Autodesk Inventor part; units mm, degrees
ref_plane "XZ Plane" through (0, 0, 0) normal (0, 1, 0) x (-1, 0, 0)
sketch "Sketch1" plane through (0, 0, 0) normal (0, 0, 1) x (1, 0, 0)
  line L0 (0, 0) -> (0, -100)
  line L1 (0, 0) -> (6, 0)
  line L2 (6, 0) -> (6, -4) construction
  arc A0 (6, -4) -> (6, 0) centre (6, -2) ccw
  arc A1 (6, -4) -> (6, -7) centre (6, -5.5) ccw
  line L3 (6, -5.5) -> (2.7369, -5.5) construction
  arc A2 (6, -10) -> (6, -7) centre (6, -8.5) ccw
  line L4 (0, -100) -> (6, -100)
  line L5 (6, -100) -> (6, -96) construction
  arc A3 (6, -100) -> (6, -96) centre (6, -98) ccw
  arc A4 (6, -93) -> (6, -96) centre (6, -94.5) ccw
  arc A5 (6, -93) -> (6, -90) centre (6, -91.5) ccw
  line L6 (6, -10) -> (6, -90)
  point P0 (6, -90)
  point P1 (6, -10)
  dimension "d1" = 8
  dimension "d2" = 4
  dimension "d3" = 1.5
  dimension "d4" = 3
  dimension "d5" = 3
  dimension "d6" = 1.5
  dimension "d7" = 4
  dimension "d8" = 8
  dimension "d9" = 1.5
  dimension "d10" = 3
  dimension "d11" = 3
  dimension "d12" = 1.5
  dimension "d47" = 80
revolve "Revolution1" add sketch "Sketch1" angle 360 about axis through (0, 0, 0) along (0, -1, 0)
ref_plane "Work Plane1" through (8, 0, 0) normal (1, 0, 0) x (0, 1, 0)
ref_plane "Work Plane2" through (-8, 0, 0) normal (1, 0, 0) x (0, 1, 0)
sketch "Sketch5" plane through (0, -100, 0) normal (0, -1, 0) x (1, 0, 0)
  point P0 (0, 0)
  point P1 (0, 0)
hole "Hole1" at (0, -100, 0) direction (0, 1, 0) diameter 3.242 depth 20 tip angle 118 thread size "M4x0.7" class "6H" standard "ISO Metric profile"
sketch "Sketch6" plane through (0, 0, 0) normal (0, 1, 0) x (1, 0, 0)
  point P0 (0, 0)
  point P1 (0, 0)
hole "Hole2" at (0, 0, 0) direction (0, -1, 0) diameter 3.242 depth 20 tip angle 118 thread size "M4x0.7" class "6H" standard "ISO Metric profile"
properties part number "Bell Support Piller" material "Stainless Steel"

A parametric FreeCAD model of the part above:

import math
import FreeCAD as App
import Part
import Sketcher
Q = App.Units.Quantity

doc = App.newDocument("Part")
body = doc.addObject("PartDesign::Body", "Body")

sketch1 = body.newObject("Sketcher::SketchObject", "Sketch")
sketch1.AttachmentSupport = (doc.getObject("XY_Plane"), [""])
sketch1.MapMode = "FlatFace"
sketch1.addGeometry([
    Part.LineSegment(App.Vector(6, 0, 0), App.Vector(0, 0, 0)),
    Part.LineSegment(App.Vector(0, 0, 0), App.Vector(0, -100, 0)),
    Part.LineSegment(App.Vector(0, -100, 0), App.Vector(6, -100, 0)),
    Part.ArcOfCircle(Part.Circle(App.Vector(6, -98, 0), App.Vector(0, 0, 1), 2), math.radians(-90), math.radians(90)),
    Part.ArcOfCircle(Part.Circle(App.Vector(6, -94.5, 0), App.Vector(0, 0, 1), 1.5), math.radians(90), math.radians(270)),
    Part.ArcOfCircle(Part.Circle(App.Vector(6, -91.5, 0), App.Vector(0, 0, 1), 1.5), math.radians(-90), math.radians(90)),
    Part.LineSegment(App.Vector(6, -90, 0), App.Vector(6, -10, 0)),
    Part.ArcOfCircle(Part.Circle(App.Vector(6, -8.5, 0), App.Vector(0, 0, 1), 1.5), math.radians(-90), math.radians(90)),
    Part.ArcOfCircle(Part.Circle(App.Vector(6, -5.5, 0), App.Vector(0, 0, 1), 1.5), math.radians(90), math.radians(270)),
    Part.ArcOfCircle(Part.Circle(App.Vector(6, -2, 0), App.Vector(0, 0, 1), 2), math.radians(-90), math.radians(90)),
], False)
sketch1.addConstraint([
    Sketcher.Constraint("Coincident", 0, 2, 1, 1),
    Sketcher.Constraint("Coincident", 1, 2, 2, 1),
    Sketcher.Constraint("Tangent", 2, 2, 3, 1),
    Sketcher.Constraint("Tangent", 3, 2, 4, 2),
    Sketcher.Constraint("Tangent", 4, 1, 5, 1),
    Sketcher.Constraint("Coincident", 5, 2, 6, 1),
    Sketcher.Constraint("Coincident", 6, 2, 7, 1),
    Sketcher.Constraint("Tangent", 7, 2, 8, 2),
    Sketcher.Constraint("Tangent", 8, 1, 9, 1),
    Sketcher.Constraint("Tangent", 9, 2, 0, 1),
    Sketcher.Constraint("Horizontal", 0),
    Sketcher.Constraint("Vertical", 1),
    Sketcher.Constraint("Horizontal", 2),
    Sketcher.Constraint("Vertical", 6),
    Sketcher.Constraint("Coincident", 0, 2, -1, 1),
    Sketcher.Constraint("Equal", 4, 5),
    Sketcher.Constraint("Equal", 5, 7),
    Sketcher.Constraint("Equal", 7, 8),
    Sketcher.Constraint("Equal", 3, 9),
    Sketcher.Constraint("Vertical", 3, 3, 4, 3),
    Sketcher.Constraint("Vertical", 4, 3, 5, 3),
    Sketcher.Constraint("Vertical", 5, 3, 7, 3),
    Sketcher.Constraint("Vertical", 7, 3, 8, 3),
    Sketcher.Constraint("Vertical", 8, 3, 9, 3),
    Sketcher.Constraint("Vertical", 4, 1, 5, 2),
    Sketcher.Constraint("Radius", 3, Q("2 mm")),
    Sketcher.Constraint("Radius", 4, Q("1.5 mm")),
    Sketcher.Constraint("DistanceY", 6, 1, 6, 2, Q("80 mm")),
    Sketcher.Constraint("DistanceX", 0, 2, 0, 1, Q("6 mm")),
])
revolution = body.newObject("PartDesign::Revolution", "Revolution")
revolution.Profile = sketch1
revolution.ReferenceAxis = (sketch1, ["V_Axis"])
revolution.Angle = 360

sketch2 = body.newObject("Sketcher::SketchObject", "Sketch001")
sketch2.AttachmentSupport = (doc.getObject("XZ_Plane"), [""])
sketch2.MapMode = "FlatFace"
sketch2.AttachmentOffset = App.Placement(App.Vector(0, 0, 100), App.Rotation())
sketch2.addGeometry(Part.Circle(App.Vector(0, 0, 0), App.Vector(0, 0, 1), 1.6), False)
sketch2.addConstraint([
    Sketcher.Constraint("Coincident", 0, 3, -1, 1),
    Sketcher.Constraint("Diameter", 0, Q("3.242 mm")),
])
doc.recompute()
hole = body.newObject("PartDesign::Hole", "Hole")
hole.Profile = sketch2
hole.ThreadType = "None"
hole.Diameter = 3.242
hole.DepthType = "Dimension"
hole.Depth = 20
hole.DrillPoint = "Angled"
hole.DrillPointAngle = 118

sketch3 = body.newObject("Sketcher::SketchObject", "Sketch002")
sketch3.AttachmentSupport = (doc.getObject("XZ_Plane"), [""])
sketch3.MapMode = "FlatFace"
sketch3.addGeometry(Part.Circle(App.Vector(0, 0, 0), App.Vector(0, 0, 1), 1.6), False)
sketch3.addConstraint([
    Sketcher.Constraint("Coincident", 0, 3, -1, 1),
    Sketcher.Constraint("Diameter", 0, Q("3.242 mm")),
])
doc.recompute()
hole2 = body.newObject("PartDesign::Hole", "Hole001")
hole2.Profile = sketch3
hole2.ThreadType = "None"
hole2.Diameter = 3.242
hole2.DepthType = "Dimension"
hole2.Depth = 20
hole2.DrillPoint = "Angled"
hole2.DrillPointAngle = 118
hole2.Reversed = True

doc.recompute()
